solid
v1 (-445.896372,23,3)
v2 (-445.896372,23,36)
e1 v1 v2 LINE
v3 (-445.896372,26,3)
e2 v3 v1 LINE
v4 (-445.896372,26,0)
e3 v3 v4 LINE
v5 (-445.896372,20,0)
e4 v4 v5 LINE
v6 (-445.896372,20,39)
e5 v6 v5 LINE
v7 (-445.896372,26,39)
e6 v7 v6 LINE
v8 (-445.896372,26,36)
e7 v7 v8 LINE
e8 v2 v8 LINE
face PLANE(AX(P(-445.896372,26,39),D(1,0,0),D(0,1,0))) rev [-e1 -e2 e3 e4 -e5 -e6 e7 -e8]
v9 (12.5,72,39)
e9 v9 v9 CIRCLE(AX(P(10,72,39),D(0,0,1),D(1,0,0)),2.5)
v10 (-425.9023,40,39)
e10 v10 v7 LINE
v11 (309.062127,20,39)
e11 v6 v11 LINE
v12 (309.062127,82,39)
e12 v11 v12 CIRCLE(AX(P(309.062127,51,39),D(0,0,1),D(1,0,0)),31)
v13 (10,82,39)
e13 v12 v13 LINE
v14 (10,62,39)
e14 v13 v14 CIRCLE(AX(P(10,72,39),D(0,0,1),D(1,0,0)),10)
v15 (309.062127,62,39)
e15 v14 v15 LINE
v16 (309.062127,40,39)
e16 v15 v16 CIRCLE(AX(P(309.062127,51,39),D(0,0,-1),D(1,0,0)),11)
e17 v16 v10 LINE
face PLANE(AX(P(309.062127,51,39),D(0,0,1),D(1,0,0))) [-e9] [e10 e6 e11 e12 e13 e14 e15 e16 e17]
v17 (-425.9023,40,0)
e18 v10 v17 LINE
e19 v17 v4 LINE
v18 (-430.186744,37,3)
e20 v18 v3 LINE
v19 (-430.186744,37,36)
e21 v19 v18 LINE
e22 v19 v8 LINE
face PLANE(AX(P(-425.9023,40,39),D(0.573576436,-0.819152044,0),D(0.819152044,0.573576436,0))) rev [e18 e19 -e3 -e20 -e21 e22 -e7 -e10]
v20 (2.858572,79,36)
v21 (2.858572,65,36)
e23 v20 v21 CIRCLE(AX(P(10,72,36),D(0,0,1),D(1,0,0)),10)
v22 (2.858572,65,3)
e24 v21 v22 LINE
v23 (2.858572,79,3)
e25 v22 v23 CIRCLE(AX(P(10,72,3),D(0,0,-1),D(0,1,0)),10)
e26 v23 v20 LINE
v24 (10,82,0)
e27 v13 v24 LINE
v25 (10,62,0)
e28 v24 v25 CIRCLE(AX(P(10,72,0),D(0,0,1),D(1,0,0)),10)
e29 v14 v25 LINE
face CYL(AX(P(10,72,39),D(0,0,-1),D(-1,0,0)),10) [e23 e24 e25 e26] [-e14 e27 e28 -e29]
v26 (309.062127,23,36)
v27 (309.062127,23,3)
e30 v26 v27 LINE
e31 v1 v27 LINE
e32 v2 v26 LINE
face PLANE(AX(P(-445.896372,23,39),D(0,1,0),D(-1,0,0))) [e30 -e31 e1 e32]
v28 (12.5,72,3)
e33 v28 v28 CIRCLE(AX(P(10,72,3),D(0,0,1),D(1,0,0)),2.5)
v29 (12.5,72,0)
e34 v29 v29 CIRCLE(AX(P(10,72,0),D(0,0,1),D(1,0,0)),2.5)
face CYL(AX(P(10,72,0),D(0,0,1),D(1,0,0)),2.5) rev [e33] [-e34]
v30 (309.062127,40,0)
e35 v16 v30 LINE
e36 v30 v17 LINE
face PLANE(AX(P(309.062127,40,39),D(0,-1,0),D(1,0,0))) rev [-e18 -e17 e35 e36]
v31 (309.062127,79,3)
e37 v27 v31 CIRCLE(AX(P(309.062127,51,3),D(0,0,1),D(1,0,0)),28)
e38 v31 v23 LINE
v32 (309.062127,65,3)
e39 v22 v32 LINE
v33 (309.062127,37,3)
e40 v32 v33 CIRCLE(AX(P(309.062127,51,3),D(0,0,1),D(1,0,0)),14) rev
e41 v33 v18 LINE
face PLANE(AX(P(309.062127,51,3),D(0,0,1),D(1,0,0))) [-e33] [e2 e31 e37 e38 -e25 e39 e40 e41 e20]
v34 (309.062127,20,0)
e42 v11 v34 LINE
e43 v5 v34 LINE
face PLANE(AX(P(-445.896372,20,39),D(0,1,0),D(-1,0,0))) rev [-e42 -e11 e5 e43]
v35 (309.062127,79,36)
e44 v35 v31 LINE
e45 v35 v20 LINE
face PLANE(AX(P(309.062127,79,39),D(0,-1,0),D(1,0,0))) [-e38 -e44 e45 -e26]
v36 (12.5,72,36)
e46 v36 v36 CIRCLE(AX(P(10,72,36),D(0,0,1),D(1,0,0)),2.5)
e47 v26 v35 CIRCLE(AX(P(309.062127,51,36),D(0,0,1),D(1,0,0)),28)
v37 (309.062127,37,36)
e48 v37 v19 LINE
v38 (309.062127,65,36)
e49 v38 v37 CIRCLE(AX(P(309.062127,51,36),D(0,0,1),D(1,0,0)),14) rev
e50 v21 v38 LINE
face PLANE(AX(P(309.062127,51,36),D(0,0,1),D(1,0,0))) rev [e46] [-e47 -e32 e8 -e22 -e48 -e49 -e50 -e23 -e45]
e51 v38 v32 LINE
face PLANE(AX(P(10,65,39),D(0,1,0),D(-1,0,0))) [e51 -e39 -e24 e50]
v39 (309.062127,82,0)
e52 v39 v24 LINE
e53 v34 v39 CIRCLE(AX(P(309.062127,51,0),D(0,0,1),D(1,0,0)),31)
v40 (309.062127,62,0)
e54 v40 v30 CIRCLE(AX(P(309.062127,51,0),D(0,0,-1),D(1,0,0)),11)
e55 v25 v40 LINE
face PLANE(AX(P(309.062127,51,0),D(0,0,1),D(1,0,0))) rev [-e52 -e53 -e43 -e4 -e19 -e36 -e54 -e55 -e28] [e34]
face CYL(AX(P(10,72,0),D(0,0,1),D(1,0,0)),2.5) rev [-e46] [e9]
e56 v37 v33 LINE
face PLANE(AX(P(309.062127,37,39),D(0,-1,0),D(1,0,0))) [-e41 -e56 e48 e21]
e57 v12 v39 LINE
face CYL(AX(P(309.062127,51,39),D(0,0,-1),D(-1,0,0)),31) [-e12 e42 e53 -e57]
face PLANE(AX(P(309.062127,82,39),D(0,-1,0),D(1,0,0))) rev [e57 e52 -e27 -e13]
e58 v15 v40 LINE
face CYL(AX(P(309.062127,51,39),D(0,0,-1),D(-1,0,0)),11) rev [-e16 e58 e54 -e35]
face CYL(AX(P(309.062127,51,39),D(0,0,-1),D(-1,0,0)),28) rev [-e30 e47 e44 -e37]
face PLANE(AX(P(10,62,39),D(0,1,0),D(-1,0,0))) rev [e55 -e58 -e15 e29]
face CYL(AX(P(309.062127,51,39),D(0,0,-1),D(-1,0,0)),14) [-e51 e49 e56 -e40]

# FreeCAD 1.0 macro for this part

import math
import FreeCAD as App
import Part
import Sketcher
Q = App.Units.Quantity


def faces_at(feature, points):
    """Names of the faces that lie closest to the given points."""
    faces = feature.Shape.Faces
    near = lambda p: min(range(len(faces)), key=lambda i: faces[i].distToShape(Part.Vertex(*p))[0])
    return sorted({f"Face{near(p) + 1}" for p in points})


def add_polygon(sketch, points):
    """Adds a closed chain of lines whose ends are joined by coincident constraints."""
    first, n = sketch.GeometryCount, len(points)
    for a, b in zip(points, points[1:] + points[:1]):
        sketch.addGeometry(Part.LineSegment(App.Vector(*a, 0), App.Vector(*b, 0)), False)
    for i in range(n):
        sketch.addConstraint(Sketcher.Constraint("Coincident", first + i, 2, first + (i + 1) % n, 1))

doc = App.newDocument("Part")
body = doc.addObject("PartDesign::Body", "Body")

sketch1 = doc.addObject("Sketcher::SketchObject", "Sketch")
body.addObject(sketch1)
sketch1.AttachmentSupport = (doc.XY_Plane, [""])
sketch1.MapMode = "FlatFace"
sketch1.addGeometry([
    Part.LineSegment(App.Vector(309, 40, 0), App.Vector(-426, 40, 0)),
    Part.LineSegment(App.Vector(-426, 40, 0), App.Vector(-446, 26, 0)),
    Part.LineSegment(App.Vector(-446, 26, 0), App.Vector(-446, 20, 0)),
    Part.LineSegment(App.Vector(-446, 20, 0), App.Vector(309, 20, 0)),
    Part.ArcOfCircle(Part.Circle(App.Vector(309, 51, 0), App.Vector(0, 0, 1), 31), math.radians(-90), math.radians(90)),
    Part.LineSegment(App.Vector(309, 82, 0), App.Vector(10, 82, 0)),
    Part.ArcOfCircle(Part.Circle(App.Vector(10, 72, 0), App.Vector(0, 0, 1), 10), math.radians(90), math.radians(270)),
    Part.LineSegment(App.Vector(10, 62, 0), App.Vector(309, 62, 0)),
    Part.ArcOfCircle(Part.Circle(App.Vector(309, 51, 0), App.Vector(0, 0, 1), 11), math.radians(-90), math.radians(90)),
], False)
sketch1.addConstraint([
    Sketcher.Constraint("Coincident", 0, 2, 1, 1),
    Sketcher.Constraint("Coincident", 1, 2, 2, 1),
    Sketcher.Constraint("Coincident", 2, 2, 3, 1),
    Sketcher.Constraint("Tangent", 3, 2, 4, 1),
    Sketcher.Constraint("Tangent", 4, 2, 5, 1),
    Sketcher.Constraint("Tangent", 5, 2, 6, 1),
    Sketcher.Constraint("Tangent", 6, 2, 7, 1),
    Sketcher.Constraint("Tangent", 7, 2, 8, 2),
    Sketcher.Constraint("Tangent", 8, 1, 0, 1),
    Sketcher.Constraint("Horizontal", 0),
    Sketcher.Constraint("Vertical", 2),
    Sketcher.Constraint("Horizontal", 3),
    Sketcher.Constraint("Horizontal", 5),
    Sketcher.Constraint("Horizontal", 7),
    Sketcher.Constraint("Coincident", 8, 3, 4, 3),
    Sketcher.Constraint("Radius", 4, Q("31 mm")),
    Sketcher.Constraint("Radius", 6, Q("10 mm")),
    Sketcher.Constraint("DistanceY", 2, 2, 2, 1, Q("6 mm")),
    Sketcher.Constraint("Angle", 1, Q("-145 deg")),
    Sketcher.Constraint("DistanceY", -1, 1, 4, 3, Q("51 mm")),
    Sketcher.Constraint("DistanceX", -1, 1, 6, 3, Q("10 mm")),
    Sketcher.Constraint("DistanceX", 3, 1, 3, 2, Q("754.958499 mm")),
    Sketcher.Constraint("DistanceX", 0, 2, -1, 1, Q("425.9023 mm")),
])
pad1 = doc.addObject("PartDesign::Pad", "Pad")
body.addObject(pad1)
pad1.Profile = sketch1
pad1.Length = 39
doc.recompute()

thickness = doc.addObject("PartDesign::Thickness", "Thickness")
body.addObject(thickness)
thickness.Base = (pad1, faces_at(pad1, [(-435.899, 33, 19.5)]))
thickness.Value = 3
thickness.Reversed = True
thickness.Join = "Intersection"

sketch2 = doc.addObject("Sketcher::SketchObject", "Sketch001")
body.addObject(sketch2)
sketch2.AttachmentSupport = (doc.YZ_Plane, [""])
sketch2.MapMode = "FlatFace"
sketch2.AttachmentOffset = App.Placement(App.Vector(0, 0, -445.896372), App.Rotation())
add_polygon(sketch2, [(79, 3), (65, 3), (65, 36), (79, 36)])
add_polygon(sketch2, [(37, 3), (23, 3), (23, 36), (37, 36)])
sketch2.addConstraint([
    Sketcher.Constraint("Horizontal", 0),
    Sketcher.Constraint("Vertical", 1),
    Sketcher.Constraint("Horizontal", 2),
    Sketcher.Constraint("Vertical", 3),
    Sketcher.Constraint("Horizontal", 4),
    Sketcher.Constraint("Vertical", 5),
    Sketcher.Constraint("Horizontal", 6),
    Sketcher.Constraint("Vertical", 7),
    Sketcher.Constraint("Horizontal", 3, 2, 4, 2),
    Sketcher.Constraint("Horizontal", 2, 2, 5, 2),
    Sketcher.Constraint("Equal", 2, 4),
    Sketcher.Constraint("DistanceX", 0, 2, 0, 1, Q("14 mm")),
    Sketcher.Constraint("DistanceY", 1, 1, 1, 2, Q("33 mm")),
    Sketcher.Constraint("DistanceX", -1, 1, 0, 2, Q("65 mm")),
    Sketcher.Constraint("DistanceY", -1, 1, 0, 2, Q("3 mm")),
    Sketcher.Constraint("DistanceX", -1, 1, 4, 2, Q("23 mm")),
])
pocket1 = doc.addObject("PartDesign::Pocket", "Pocket")
body.addObject(pocket1)
pocket1.Profile = sketch2
pocket1.Length = 455.896372
pocket1.Reversed = True

sketch3 = doc.addObject("Sketcher::SketchObject", "Sketch002")
body.addObject(sketch3)
sketch3.AttachmentSupport = (doc.XY_Plane, [""])
sketch3.MapMode = "FlatFace"
sketch3.AttachmentOffset = App.Placement(App.Vector(0, 0, 39), App.Rotation())
sketch3.addGeometry(Part.Circle(App.Vector(10, 72, 0), App.Vector(0, 0, 1), 2.5), False)
sketch3.addConstraint([
    Sketcher.Constraint("Diameter", 0, Q("5 mm")),
    Sketcher.Constraint("DistanceX", -1, 1, 0, 3, Q("10 mm")),
    Sketcher.Constraint("DistanceY", -1, 1, 0, 3, Q("72 mm")),
])
pocket2 = doc.addObject("PartDesign::Pocket", "Pocket001")
body.addObject(pocket2)
pocket2.Profile = sketch3
pocket2.Type = "ThroughAll"

doc.recompute()
